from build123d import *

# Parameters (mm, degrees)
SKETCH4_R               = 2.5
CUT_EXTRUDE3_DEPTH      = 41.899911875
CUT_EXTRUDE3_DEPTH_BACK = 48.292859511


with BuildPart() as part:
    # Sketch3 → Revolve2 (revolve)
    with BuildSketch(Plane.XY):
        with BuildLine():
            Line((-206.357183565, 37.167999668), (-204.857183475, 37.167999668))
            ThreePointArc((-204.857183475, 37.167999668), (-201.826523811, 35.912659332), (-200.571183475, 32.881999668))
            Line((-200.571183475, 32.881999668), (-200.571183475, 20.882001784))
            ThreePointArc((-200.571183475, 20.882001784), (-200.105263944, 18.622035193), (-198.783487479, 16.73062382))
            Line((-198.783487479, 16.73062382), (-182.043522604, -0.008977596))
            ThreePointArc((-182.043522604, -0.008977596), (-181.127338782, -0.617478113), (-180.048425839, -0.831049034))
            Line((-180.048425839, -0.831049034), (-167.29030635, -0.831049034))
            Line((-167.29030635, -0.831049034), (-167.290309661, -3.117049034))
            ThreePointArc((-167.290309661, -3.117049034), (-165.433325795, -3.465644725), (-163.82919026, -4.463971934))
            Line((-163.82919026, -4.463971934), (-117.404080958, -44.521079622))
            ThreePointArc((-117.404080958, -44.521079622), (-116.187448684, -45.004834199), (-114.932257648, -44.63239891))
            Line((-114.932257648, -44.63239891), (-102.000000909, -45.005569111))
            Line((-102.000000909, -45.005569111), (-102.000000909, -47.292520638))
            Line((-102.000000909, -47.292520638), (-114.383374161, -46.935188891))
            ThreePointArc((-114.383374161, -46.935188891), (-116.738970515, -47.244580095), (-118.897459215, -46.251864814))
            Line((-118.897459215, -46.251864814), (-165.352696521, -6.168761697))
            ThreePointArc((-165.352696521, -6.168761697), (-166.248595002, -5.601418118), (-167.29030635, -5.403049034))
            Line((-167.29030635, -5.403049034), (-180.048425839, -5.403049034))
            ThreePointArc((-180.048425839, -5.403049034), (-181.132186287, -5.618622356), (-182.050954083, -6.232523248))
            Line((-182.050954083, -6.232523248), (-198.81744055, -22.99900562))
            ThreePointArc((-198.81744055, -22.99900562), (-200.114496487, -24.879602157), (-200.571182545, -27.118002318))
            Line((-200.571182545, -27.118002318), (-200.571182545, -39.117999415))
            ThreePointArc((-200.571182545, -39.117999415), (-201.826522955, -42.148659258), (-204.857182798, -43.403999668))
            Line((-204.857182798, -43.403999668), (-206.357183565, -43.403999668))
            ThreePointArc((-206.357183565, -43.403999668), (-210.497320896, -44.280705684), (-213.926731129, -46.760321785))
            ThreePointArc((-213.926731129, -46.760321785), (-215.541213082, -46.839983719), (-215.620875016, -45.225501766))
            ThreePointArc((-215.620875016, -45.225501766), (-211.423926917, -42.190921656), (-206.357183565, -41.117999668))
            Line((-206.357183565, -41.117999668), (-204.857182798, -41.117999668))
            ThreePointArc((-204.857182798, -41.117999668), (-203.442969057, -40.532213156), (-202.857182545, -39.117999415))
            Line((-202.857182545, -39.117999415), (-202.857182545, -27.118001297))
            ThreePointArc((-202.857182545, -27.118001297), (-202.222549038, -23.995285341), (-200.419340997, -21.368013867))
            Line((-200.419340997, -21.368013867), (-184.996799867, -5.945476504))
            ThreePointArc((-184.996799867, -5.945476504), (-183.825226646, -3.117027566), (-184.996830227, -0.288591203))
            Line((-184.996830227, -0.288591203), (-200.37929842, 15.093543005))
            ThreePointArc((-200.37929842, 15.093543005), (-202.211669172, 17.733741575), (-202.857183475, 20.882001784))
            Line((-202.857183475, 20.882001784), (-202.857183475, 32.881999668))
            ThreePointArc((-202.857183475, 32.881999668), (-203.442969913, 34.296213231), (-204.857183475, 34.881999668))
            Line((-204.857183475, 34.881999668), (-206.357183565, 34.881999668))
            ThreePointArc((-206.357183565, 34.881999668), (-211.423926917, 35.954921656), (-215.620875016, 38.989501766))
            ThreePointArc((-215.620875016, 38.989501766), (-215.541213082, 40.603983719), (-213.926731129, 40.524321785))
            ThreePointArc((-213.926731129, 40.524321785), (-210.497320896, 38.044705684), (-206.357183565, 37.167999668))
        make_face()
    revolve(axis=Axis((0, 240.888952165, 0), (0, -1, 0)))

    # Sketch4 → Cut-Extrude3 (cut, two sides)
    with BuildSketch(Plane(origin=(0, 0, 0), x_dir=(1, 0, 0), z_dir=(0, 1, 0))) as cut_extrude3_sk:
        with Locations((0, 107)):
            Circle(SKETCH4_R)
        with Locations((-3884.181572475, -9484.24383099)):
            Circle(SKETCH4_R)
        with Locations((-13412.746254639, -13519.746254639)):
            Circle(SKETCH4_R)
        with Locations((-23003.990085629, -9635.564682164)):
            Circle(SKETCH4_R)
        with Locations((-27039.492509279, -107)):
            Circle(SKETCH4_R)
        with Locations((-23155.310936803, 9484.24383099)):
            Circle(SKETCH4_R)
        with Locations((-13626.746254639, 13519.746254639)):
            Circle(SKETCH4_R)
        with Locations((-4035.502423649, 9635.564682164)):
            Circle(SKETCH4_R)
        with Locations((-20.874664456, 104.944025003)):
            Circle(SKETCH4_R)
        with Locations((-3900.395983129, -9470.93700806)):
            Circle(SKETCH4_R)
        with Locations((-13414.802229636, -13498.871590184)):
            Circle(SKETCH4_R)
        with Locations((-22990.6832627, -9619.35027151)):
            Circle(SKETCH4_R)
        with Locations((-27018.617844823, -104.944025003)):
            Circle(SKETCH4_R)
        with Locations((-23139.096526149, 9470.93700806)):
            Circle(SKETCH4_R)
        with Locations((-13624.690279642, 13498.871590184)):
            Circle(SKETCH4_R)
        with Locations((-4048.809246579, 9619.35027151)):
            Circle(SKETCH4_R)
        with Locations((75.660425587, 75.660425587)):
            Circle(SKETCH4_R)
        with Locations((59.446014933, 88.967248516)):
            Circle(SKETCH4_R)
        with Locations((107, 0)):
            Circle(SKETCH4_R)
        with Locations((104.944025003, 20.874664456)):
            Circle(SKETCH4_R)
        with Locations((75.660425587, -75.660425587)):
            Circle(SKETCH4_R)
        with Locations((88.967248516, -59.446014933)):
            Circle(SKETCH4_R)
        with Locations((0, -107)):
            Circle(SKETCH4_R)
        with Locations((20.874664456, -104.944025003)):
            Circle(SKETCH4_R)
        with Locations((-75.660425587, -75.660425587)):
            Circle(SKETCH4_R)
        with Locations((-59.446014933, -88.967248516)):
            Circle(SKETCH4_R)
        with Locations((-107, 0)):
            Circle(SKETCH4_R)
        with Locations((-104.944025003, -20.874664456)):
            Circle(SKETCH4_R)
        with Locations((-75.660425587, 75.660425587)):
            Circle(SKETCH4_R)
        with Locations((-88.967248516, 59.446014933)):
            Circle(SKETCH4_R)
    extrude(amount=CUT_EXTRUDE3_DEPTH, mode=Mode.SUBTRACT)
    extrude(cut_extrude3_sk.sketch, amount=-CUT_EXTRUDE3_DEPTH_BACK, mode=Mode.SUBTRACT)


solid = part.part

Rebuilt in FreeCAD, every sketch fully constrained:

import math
import FreeCAD as App
import Part
import Sketcher

V = App.Vector

doc = App.newDocument("Part")
params = doc.addObject("Spreadsheet::Sheet", "Params")
for row, (alias, value) in enumerate([
    ("sketch1_radius", "2 mm"),
    ("sketch1_radius2", "8.000002 mm"),
    ("sketch1_radius3", "4 mm"),
    ("sketch1_radius4", "8.000001 mm"),
    ("sketch1_radius5", "2 mm"),
    ("revolution_angle", "360 deg"),
    ("sketch2_diameter", "5 mm"),
], start=1):
    params.set(f"A{row}", alias)
    params.set(f"B{row}", "=" + value)
    params.setAlias(f"B{row}", alias)

body = doc.addObject("PartDesign::Body", "Body")

# Sketch on XY plane
sketch1 = body.newObject("Sketcher::SketchObject", "Sketch")
sketch1.AttachmentSupport = (doc.getObject("XY_Plane"), [""])
sketch1.MapMode = "FlatFace"
sketch1.addGeometry([
    Part.LineSegment(V(-204.857183, 37.168, 0), V(-206.357184, 37.168, 0)),  # 0
    Part.ArcOfCircle(Part.Circle(V(-206.357184, 47.382, 0), V(0, 0, 1), 10.214), math.radians(-137.824803), math.radians(-90)),  # 1
    Part.ArcOfCircle(Part.Circle(V(-214.773803, 39.756912, 0), V(0, 0, 1), 1.143), math.radians(42.175197), math.radians(222.175197)),  # 2
    Part.ArcOfCircle(Part.Circle(V(-206.357184, 47.382, 0), V(0, 0, 1), 12.5), math.radians(-137.824803), math.radians(-90)),  # 3
    Part.LineSegment(V(-206.357184, 34.882, 0), V(-204.857183, 34.882, 0)),  # 4
    Part.ArcOfCircle(Part.Circle(V(-204.857183, 32.882, 0), V(0, 0, 1), 2), math.radians(0), math.radians(90)),  # 5
    Part.LineSegment(V(-202.857183, 32.882, 0), V(-202.857183, 20.882002, 0)),  # 6
    Part.ArcOfCircle(Part.Circle(V(-194.857182, 20.882002, 0), V(0, 0, 1), 8.000002), math.radians(-180), math.radians(-133.651045)),  # 7
    Part.LineSegment(V(-200.379298, 15.093543, 0), V(-184.99683, -0.288591, 0)),  # 8
    Part.ArcOfCircle(Part.Circle(V(-187.825227, -3.117049, 0), V(0, 0, 1), 4), math.radians(-45.000007), math.radians(45.000622)),  # 9
    Part.LineSegment(V(-184.9968, -5.945477, 0), V(-200.419341, -21.368014, 0)),  # 10
    Part.ArcOfCircle(Part.Circle(V(-194.857182, -27.118005, 0), V(0, 0, 1), 8.000001), math.radians(134.048723), math.radians(179.999974)),  # 11
    Part.LineSegment(V(-202.857183, -27.118001, 0), V(-202.857183, -39.117999, 0)),  # 12
    Part.ArcOfCircle(Part.Circle(V(-204.857183, -39.117999, 0), V(0, 0, 1), 2), math.radians(-90), math.radians(0)),  # 13
    Part.LineSegment(V(-204.857183, -41.118, 0), V(-206.357184, -41.118, 0)),  # 14
    Part.ArcOfCircle(Part.Circle(V(-206.357184, -53.618, 0), V(0, 0, 1), 12.5), math.radians(90), math.radians(137.824803)),  # 15
    Part.ArcOfCircle(Part.Circle(V(-214.773803, -45.992912, 0), V(0, 0, 1), 1.143), math.radians(137.824803), math.radians(317.824803)),  # 16
    Part.ArcOfCircle(Part.Circle(V(-206.357184, -53.618, 0), V(0, 0, 1), 10.214), math.radians(90), math.radians(137.824803)),  # 17
    Part.LineSegment(V(-206.357184, -43.404, 0), V(-204.857183, -43.404, 0)),  # 18
    Part.ArcOfCircle(Part.Circle(V(-204.857183, -39.117999, 0), V(0, 0, 1), 4.286), math.radians(-90), math.radians(0)),  # 19
    Part.LineSegment(V(-200.571183, -39.117999, 0), V(-200.571183, -27.118002, 0)),  # 20
    Part.ArcOfCircle(Part.Circle(V(-194.857182, -27.118005, 0), V(0, 0, 1), 5.714001), math.radians(133.874402), math.radians(179.999974)),  # 21
    Part.LineSegment(V(-198.817441, -22.999006, 0), V(-182.050954, -6.232523, 0)),  # 22
    Part.ArcOfCircle(Part.Circle(V(-180.048426, -8.235052, 0), V(0, 0, 1), 2.832003), math.radians(90), math.radians(134.999993)),  # 23
    Part.LineSegment(V(-180.048426, -5.403049, 0), V(-167.290306, -5.403049, 0)),  # 24
    Part.ArcOfCircle(Part.Circle(V(-167.290302, -8.237423, 0), V(0, 0, 1), 2.834374), math.radians(46.873626), math.radians(90.000083)),  # 25
    Part.LineSegment(V(-165.352697, -6.168762, 0), V(-118.897459, -46.251865, 0)),  # 26
    Part.ArcOfCircle(Part.Circle(V(-116.097464, -43.006746, 0), V(0, 0, 1), 4.286113), math.radians(-130.788703), math.radians(-66.427004)),  # 27
    Part.LineSegment(V(-114.383374, -46.935189, 0), V(-102.000001, -47.292521, 0)),  # 28
    Part.LineSegment(V(-102.000001, -47.292521, 0), V(-102.000001, -45.005569, 0)),  # 29
    Part.LineSegment(V(-102.000001, -45.005569, 0), V(-114.932258, -44.632399, 0)),  # 30
    Part.ArcOfCircle(Part.Circle(V(-116.097464, -43.006746, 0), V(0, 0, 1), 2.000113), math.radians(-130.788703), math.radians(-54.368477)),  # 31
    Part.LineSegment(V(-117.404081, -44.52108, 0), V(-163.82919, -4.463972, 0)),  # 32
    Part.ArcOfCircle(Part.Circle(V(-167.290302, -8.237423, 0), V(0, 0, 1), 5.120374), math.radians(47.472105), math.radians(90.000083)),  # 33
    Part.LineSegment(V(-167.29031, -3.117049, 0), V(-167.290306, -0.831049, 0)),  # 34
    Part.LineSegment(V(-167.290306, -0.831049, 0), V(-180.048426, -0.831049, 0)),  # 35
    Part.ArcOfCircle(Part.Circle(V(-180.048426, 2.000951, 0), V(0, 0, 1), 2.832), math.radians(-134.787818), math.radians(-90)),  # 36
    Part.LineSegment(V(-182.043523, -0.008978, 0), V(-198.783487, 16.730624, 0)),  # 37
    Part.ArcOfCircle(Part.Circle(V(-194.857182, 20.882002, 0), V(0, 0, 1), 5.714002), math.radians(180), math.radians(226.596046)),  # 38
    Part.LineSegment(V(-200.571183, 20.882002, 0), V(-200.571183, 32.882, 0)),  # 39
    Part.ArcOfCircle(Part.Circle(V(-204.857183, 32.882, 0), V(0, 0, 1), 4.286), math.radians(0), math.radians(90)),  # 40
], False)
sketch1.addConstraint([
    Sketcher.Constraint("Coincident", 0, 2, 1, 2),
    Sketcher.Constraint("Coincident", 1, 1, 2, 1),
    Sketcher.Constraint("Coincident", 2, 2, 3, 1),
    Sketcher.Constraint("Coincident", 3, 2, 4, 1),
    Sketcher.Constraint("Coincident", 4, 2, 5, 2),
    Sketcher.Constraint("Coincident", 5, 1, 6, 1),
    Sketcher.Constraint("Coincident", 6, 2, 7, 1),
    Sketcher.Constraint("Coincident", 7, 2, 8, 1),
    Sketcher.Constraint("Coincident", 8, 2, 9, 2),
    Sketcher.Constraint("Coincident", 9, 1, 10, 1),
    Sketcher.Constraint("Coincident", 10, 2, 11, 1),
    Sketcher.Constraint("Coincident", 11, 2, 12, 1),
    Sketcher.Constraint("Coincident", 12, 2, 13, 2),
    Sketcher.Constraint("Coincident", 13, 1, 14, 1),
    Sketcher.Constraint("Coincident", 14, 2, 15, 1),
    Sketcher.Constraint("Coincident", 15, 2, 16, 1),
    Sketcher.Constraint("Coincident", 16, 2, 17, 2),
    Sketcher.Constraint("Coincident", 17, 1, 18, 1),
    Sketcher.Constraint("Coincident", 18, 2, 19, 1),
    Sketcher.Constraint("Coincident", 19, 2, 20, 1),
    Sketcher.Constraint("Coincident", 20, 2, 21, 2),
    Sketcher.Constraint("Coincident", 21, 1, 22, 1),
    Sketcher.Constraint("Coincident", 22, 2, 23, 2),
    Sketcher.Constraint("Coincident", 23, 1, 24, 1),
    Sketcher.Constraint("Coincident", 24, 2, 25, 2),
    Sketcher.Constraint("Coincident", 25, 1, 26, 1),
    Sketcher.Constraint("Coincident", 26, 2, 27, 1),
    Sketcher.Constraint("Coincident", 27, 2, 28, 1),
    Sketcher.Constraint("Coincident", 28, 2, 29, 1),
    Sketcher.Constraint("Coincident", 29, 2, 30, 1),
    Sketcher.Constraint("Coincident", 30, 2, 31, 2),
    Sketcher.Constraint("Coincident", 31, 1, 32, 1),
    Sketcher.Constraint("Coincident", 32, 2, 33, 1),
    Sketcher.Constraint("Coincident", 33, 2, 34, 1),
    Sketcher.Constraint("Coincident", 34, 2, 35, 1),
    Sketcher.Constraint("Coincident", 35, 2, 36, 2),
    Sketcher.Constraint("Coincident", 36, 1, 37, 1),
    Sketcher.Constraint("Coincident", 37, 2, 38, 2),
    Sketcher.Constraint("Coincident", 38, 1, 39, 1),
    Sketcher.Constraint("Coincident", 39, 2, 40, 1),
    Sketcher.Constraint("Coincident", 40, 2, 0, 1),
    Sketcher.Constraint("Horizontal", 0),
    Sketcher.Constraint("Horizontal", 4),
    Sketcher.Constraint("Vertical", 6),
    Sketcher.Constraint("Vertical", 12),
    Sketcher.Constraint("Horizontal", 14),
    Sketcher.Constraint("Horizontal", 18),
    Sketcher.Constraint("Vertical", 20),
    Sketcher.Constraint("Horizontal", 24),
    Sketcher.Constraint("Vertical", 29),
    Sketcher.Constraint("Horizontal", 35),
    Sketcher.Constraint("Vertical", 39),
    Sketcher.Constraint("Coincident", 3, 3, 1, 3),
    Sketcher.Constraint("Coincident", 17, 3, 15, 3),
    Sketcher.Constraint("Coincident", 19, 3, 13, 3),
    Sketcher.Constraint("Coincident", 21, 3, 11, 3),
    Sketcher.Constraint("Coincident", 31, 3, 27, 3),
    Sketcher.Constraint("Coincident", 33, 3, 25, 3),
    Sketcher.Constraint("Coincident", 38, 3, 7, 3),
    Sketcher.Constraint("Coincident", 40, 3, 5, 3),
    Sketcher.Constraint("Radius", 5, 2.0),
    Sketcher.Constraint("Radius", 7, 8.000002),
    Sketcher.Constraint("Radius", 9, 4.0),
    Sketcher.Constraint("Radius", 11, 8.000001),
    Sketcher.Constraint("Radius", 13, 2.0),
    Sketcher.Constraint("Radius", 3, 12.5),
    Sketcher.Constraint("Radius", 15, 12.5),
    Sketcher.Constraint("DistanceY", 12, 2, 12, 1, 11.999998),
    Sketcher.Constraint("DistanceX", 0, 2, 0, 1, 1.5),
    Sketcher.Constraint("DistanceX", 4, 1, 4, 2, 1.5),
    Sketcher.Constraint("DistanceX", 14, 2, 14, 1, 1.500001),
    Sketcher.Constraint("DistanceX", 18, 1, 18, 2, 1.500001),
    Sketcher.Constraint("DistanceX", 28, 2, -1, 1, 102.000001),
    Sketcher.Constraint("Radius", 1, 10.214),
    Sketcher.Constraint("Radius", 16, 1.143),
    Sketcher.Constraint("Radius", 36, 2.832),
    Sketcher.Constraint("Distance", 34, 2.286),
    Sketcher.Constraint("DistanceY", -1, 1, 1, 3, 47.382),
    Sketcher.Constraint("DistanceY", -1, 1, 7, 3, 20.882002),
    Sketcher.Constraint("DistanceY", 13, 3, -1, 1, 39.117999),
    Sketcher.Constraint("DistanceY", -1, 1, 5, 1, 32.882),
    Sketcher.Constraint("DistanceY", -1, 1, 6, 2, 20.882002),
    Sketcher.Constraint("DistanceY", 11, 2, -1, 1, 27.118001),
    Sketcher.Constraint("DistanceY", 19, 2, -1, 1, 39.117999),
    Sketcher.Constraint("DistanceY", -1, 1, 38, 1, 20.882002),
    Sketcher.Constraint("DistanceY", -1, 1, 39, 2, 32.882),
    Sketcher.Constraint("Radius", 23, 2.832003),
    Sketcher.Constraint("Radius", 25, 2.834374),
    Sketcher.Constraint("Radius", 27, 4.286113),
    Sketcher.Constraint("Radius", 31, 2.000113),
    Sketcher.Constraint("Radius", 33, 5.120374),
    Sketcher.Constraint("DistanceX", 24, 1, 24, 2, 12.758119),
    Sketcher.Constraint("DistanceX", 35, 2, 35, 1, 12.758119),
    Sketcher.Constraint("DistanceY", 29, 1, 29, 2, 2.286952),
    Sketcher.Constraint("DistanceY", -1, 1, 2, 2, 38.989502),
    Sketcher.Constraint("DistanceX", 7, 2, -1, 1, 200.379298),
    Sketcher.Constraint("DistanceX", 9, 1, -1, 1, 184.9968),
    Sketcher.Constraint("DistanceY", 15, 2, -1, 1, 45.225502),
    Sketcher.Constraint("DistanceY", 30, 2, -1, 1, 44.632399),
    Sketcher.Constraint("Distance", 8, 21.753859),
    Sketcher.Constraint("Distance", 22, 23.71139),
    Sketcher.Constraint("Distance", 26, 61.357512),
    Sketcher.Constraint("Distance", 30, 12.93764),
    Sketcher.Constraint("Distance", 32, 61.317719),
    Sketcher.Constraint("Distance", 37, 23.673628),
    Sketcher.Constraint("DistanceY", 20, 1, 20, 2, 11.999997),
    Sketcher.Constraint("DistanceY", -1, 1, 2, 3, 39.756912),
    Sketcher.Constraint("DistanceX", 7, 3, -1, 1, 194.857182),
    Sketcher.Constraint("DistanceY", 9, 3, -1, 1, 3.117049),
    Sketcher.Constraint("DistanceX", 11, 3, -1, 1, 194.857182),
    Sketcher.Constraint("DistanceY", 16, 3, -1, 1, 45.992912),
    Sketcher.Constraint("DistanceY", 23, 3, -1, 1, 8.235052),
    Sketcher.Constraint("DistanceX", 1, 1, -1, 1, 213.926731),
    Sketcher.Constraint("DistanceY", -1, 1, 1, 1, 40.524322),
    Sketcher.Constraint("DistanceX", 8, 2, -1, 1, 184.99683),
    Sketcher.Constraint("DistanceX", 10, 2, -1, 1, 200.419341),
    Sketcher.Constraint("DistanceX", 16, 2, -1, 1, 213.926731),
    Sketcher.Constraint("DistanceY", 16, 2, -1, 1, 46.760322),
    Sketcher.Constraint("DistanceX", 21, 1, -1, 1, 198.817441),
    Sketcher.Constraint("DistanceY", 25, 1, -1, 1, 6.168762),
    Sketcher.Constraint("DistanceX", 26, 2, -1, 1, 118.897459),
    Sketcher.Constraint("DistanceY", 27, 2, -1, 1, 46.935189),
    Sketcher.Constraint("DistanceY", 28, 2, -1, 1, 47.292521),
    Sketcher.Constraint("DistanceX", 31, 1, -1, 1, 117.404081),
    Sketcher.Constraint("DistanceY", 31, 1, -1, 1, 44.52108),
    Sketcher.Constraint("DistanceX", 33, 2, -1, 1, 167.29031),
    Sketcher.Constraint("Distance", 10, 21.810764),
    Sketcher.Constraint("DistanceX", 23, 3, -1, 1, 180.048426),
    Sketcher.Constraint("DistanceX", 36, 3, -1, 1, 180.048426),
    Sketcher.Constraint("DistanceX", 0, 2, -1, 1, 206.357184),
    Sketcher.Constraint("DistanceX", 3, 2, -1, 1, 206.357184),
    Sketcher.Constraint("DistanceX", 13, 1, -1, 1, 204.857183),
    Sketcher.Constraint("DistanceX", 17, 1, -1, 1, 206.357184),
    Sketcher.Constraint("DistanceX", 23, 1, -1, 1, 180.048426),
    Sketcher.Constraint("DistanceX", 34, 2, -1, 1, 167.290306),
    Sketcher.Constraint("DistanceX", 36, 1, -1, 1, 182.043523),
])
sketch1.setExpression("Constraints[60]", "Params.sketch1_radius")
sketch1.setExpression("Constraints[61]", "Params.sketch1_radius2")
sketch1.setExpression("Constraints[62]", "Params.sketch1_radius3")
sketch1.setExpression("Constraints[63]", "Params.sketch1_radius4")
sketch1.setExpression("Constraints[64]", "Params.sketch1_radius5")
revolution = body.newObject("PartDesign::Revolution", "Revolution")
revolution.Profile = sketch1
revolution.ReferenceAxis = (sketch1, ["V_Axis"])
revolution.setExpression("Angle", "Params.revolution_angle")

# Sketch on XZ plane
sketch2 = body.newObject("Sketcher::SketchObject", "Sketch001")
sketch2.AttachmentSupport = (doc.getObject("XZ_Plane"), [""])
sketch2.MapMode = "FlatFace"
sketch2.addGeometry([
    Part.Circle(V(0, -107, 0), V(0, 0, 1), 2.5),  # 0
    Part.Circle(V(-3884.2, 9484.2, 0), V(0, 0, 1), 2.5),  # 1
    Part.Circle(V(-13412.7, 13519.7, 0), V(0, 0, 1), 2.5),  # 2
    Part.Circle(V(-23004, 9635.6, 0), V(0, 0, 1), 2.5),  # 3
    Part.Circle(V(-27039.5, 107, 0), V(0, 0, 1), 2.5),  # 4
    Part.Circle(V(-23155.3, -9484.2, 0), V(0, 0, 1), 2.5),  # 5
    Part.Circle(V(-13626.7, -13519.7, 0), V(0, 0, 1), 2.5),  # 6
    Part.Circle(V(-4035.5, -9635.6, 0), V(0, 0, 1), 2.5),  # 7
    Part.Circle(V(-20.9, -104.9, 0), V(0, 0, 1), 2.5),  # 8
    Part.Circle(V(-3900.4, 9470.9, 0), V(0, 0, 1), 2.5),  # 9
    Part.Circle(V(-13414.8, 13498.9, 0), V(0, 0, 1), 2.5),  # 10
    Part.Circle(V(-22990.7, 9619.4, 0), V(0, 0, 1), 2.5),  # 11
    Part.Circle(V(-27018.6, 104.9, 0), V(0, 0, 1), 2.5),  # 12
    Part.Circle(V(-23139.1, -9470.9, 0), V(0, 0, 1), 2.5),  # 13
    Part.Circle(V(-13624.7, -13498.9, 0), V(0, 0, 1), 2.5),  # 14
    Part.Circle(V(-4048.8, -9619.4, 0), V(0, 0, 1), 2.5),  # 15
    Part.Circle(V(75.7, -75.7, 0), V(0, 0, 1), 2.5),  # 16
    Part.Circle(V(59.4, -89, 0), V(0, 0, 1), 2.5),  # 17
    Part.Circle(V(107, 0, 0), V(0, 0, 1), 2.5),  # 18
    Part.Circle(V(104.9, -20.9, 0), V(0, 0, 1), 2.5),  # 19
    Part.Circle(V(75.7, 75.7, 0), V(0, 0, 1), 2.5),  # 20
    Part.Circle(V(89, 59.4, 0), V(0, 0, 1), 2.5),  # 21
    Part.Circle(V(0, 107, 0), V(0, 0, 1), 2.5),  # 22
    Part.Circle(V(20.9, 104.9, 0), V(0, 0, 1), 2.5),  # 23
    Part.Circle(V(-75.7, 75.7, 0), V(0, 0, 1), 2.5),  # 24
    Part.Circle(V(-59.4, 89, 0), V(0, 0, 1), 2.5),  # 25
    Part.Circle(V(-107, 0, 0), V(0, 0, 1), 2.5),  # 26
    Part.Circle(V(-104.9, 20.9, 0), V(0, 0, 1), 2.5),  # 27
    Part.Circle(V(-75.7, -75.7, 0), V(0, 0, 1), 2.5),  # 28
    Part.Circle(V(-89, -59.4, 0), V(0, 0, 1), 2.5),  # 29
], False)
sketch2.addConstraint([
    Sketcher.Constraint("Equal", 0, 1),
    Sketcher.Constraint("Equal", 1, 2),
    Sketcher.Constraint("Equal", 2, 3),
    Sketcher.Constraint("Equal", 3, 4),
    Sketcher.Constraint("Equal", 4, 5),
    Sketcher.Constraint("Equal", 5, 6),
    Sketcher.Constraint("Equal", 6, 7),
    Sketcher.Constraint("Equal", 7, 8),
    Sketcher.Constraint("Equal", 8, 9),
    Sketcher.Constraint("Equal", 9, 10),
    Sketcher.Constraint("Equal", 10, 11),
    Sketcher.Constraint("Equal", 11, 12),
    Sketcher.Constraint("Equal", 12, 13),
    Sketcher.Constraint("Equal", 13, 14),
    Sketcher.Constraint("Equal", 14, 15),
    Sketcher.Constraint("Equal", 15, 16),
    Sketcher.Constraint("Equal", 16, 17),
    Sketcher.Constraint("Equal", 17, 18),
    Sketcher.Constraint("Equal", 18, 19),
    Sketcher.Constraint("Equal", 19, 20),
    Sketcher.Constraint("Equal", 20, 21),
    Sketcher.Constraint("Equal", 21, 22),
    Sketcher.Constraint("Equal", 22, 23),
    Sketcher.Constraint("Equal", 23, 24),
    Sketcher.Constraint("Equal", 24, 25),
    Sketcher.Constraint("Equal", 25, 26),
    Sketcher.Constraint("Equal", 26, 27),
    Sketcher.Constraint("Equal", 27, 28),
    Sketcher.Constraint("Equal", 28, 29),
    Sketcher.Constraint("Symmetric", 0, 3, 22, 3, -1, 1),
    Sketcher.Constraint("Symmetric", 8, 3, 23, 3, -1, 1),
    Sketcher.Constraint("Symmetric", 16, 3, 24, 3, -1, 1),
    Sketcher.Constraint("Symmetric", 17, 3, 25, 3, -1, 1),
    Sketcher.Constraint("Symmetric", 18, 3, 26, 3, -1, 1),
    Sketcher.Constraint("Symmetric", 19, 3, 27, 3, -1, 1),
    Sketcher.Constraint("Symmetric", 20, 3, 28, 3, -1, 1),
    Sketcher.Constraint("Symmetric", 21, 3, 29, 3, -1, 1),
    Sketcher.Constraint("Symmetric", 20, 3, 24, 3, -2),
    Sketcher.Constraint("PointOnObject", 0, 3, -2),
    Sketcher.Constraint("PointOnObject", 18, 3, -1),
    Sketcher.Constraint("Horizontal", 4, 3, 22, 3),
    Sketcher.Constraint("Horizontal", 12, 3, 23, 3),
    Sketcher.Constraint("Diameter", 0, 5.0),
    Sketcher.Constraint("DistanceY", 0, 3, -1, 1, 107.0),
    Sketcher.Constraint("DistanceX", -1, 1, 18, 3, 107.0),
    Sketcher.Constraint("DistanceX", 1, 3, 16, 3, 3959.841998),
    Sketcher.Constraint("DistanceX", 9, 3, 17, 3, 3959.841998),
    Sketcher.Constraint("DistanceY", 8, 3, 16, 3, 29.283599),
    Sketcher.Constraint("DistanceX", 16, 3, 19, 3, 29.283599),
    Sketcher.Constraint("DistanceY", -1, 1, 1, 3, 9484.243831),
    Sketcher.Constraint("DistanceX", 4, 3, -1, 1, 27039.492509),
    Sketcher.Constraint("DistanceY", 5, 3, -1, 1, 9484.243831),
    Sketcher.Constraint("DistanceY", -1, 1, 9, 3, 9470.937008),
    Sketcher.Constraint("DistanceX", 10, 3, -1, 1, 13414.80223),
    Sketcher.Constraint("DistanceY", -1, 1, 10, 3, 13498.87159),
    Sketcher.Constraint("DistanceY", -1, 1, 11, 3, 9619.350272),
    Sketcher.Constraint("DistanceY", 13, 3, -1, 1, 9470.937008),
    Sketcher.Constraint("DistanceX", 14, 3, -1, 1, 13624.69028),
    Sketcher.Constraint("DistanceY", 14, 3, -1, 1, 13498.87159),
    Sketcher.Constraint("DistanceY", 15, 3, -1, 1, 9619.350272),
    Sketcher.Constraint("DistanceY", 17, 3, -1, 1, 88.967249),
    Sketcher.Constraint("DistanceX", -1, 1, 21, 3, 88.967249),
    Sketcher.Constraint("DistanceX", 3, 3, 2, 3, 9591.243831),
    Sketcher.Constraint("DistanceY", 1, 3, 3, 3, 151.320851),
    Sketcher.Constraint("DistanceX", 5, 3, 3, 3, 151.320851),
    Sketcher.Constraint("DistanceX", 3, 3, 6, 3, 9377.243831),
    Sketcher.Constraint("DistanceX", 6, 3, 7, 3, 9591.243831),
    Sketcher.Constraint("DistanceX", 7, 3, 1, 3, 151.320851),
    Sketcher.Constraint("DistanceY", 7, 3, 5, 3, 151.320851),
    Sketcher.Constraint("DistanceX", 1, 3, 8, 3, 3863.306908),
    Sketcher.Constraint("DistanceY", 8, 3, 2, 3, 13624.69028),
    Sketcher.Constraint("DistanceY", 6, 3, 8, 3, 13414.80223),
    Sketcher.Constraint("DistanceX", 9, 3, 1, 3, 16.214411),
    Sketcher.Constraint("DistanceX", 11, 3, 2, 3, 9577.937008),
    Sketcher.Constraint("DistanceX", 12, 3, 5, 3, 3863.306908),
    Sketcher.Constraint("DistanceX", 5, 3, 13, 3, 16.214411),
    Sketcher.Constraint("DistanceX", 6, 3, 15, 3, 9577.937008),
    Sketcher.Constraint("DistanceY", 16, 3, 19, 3, 54.785761),
    Sketcher.Constraint("DistanceY", 19, 3, 20, 3, 96.53509),
    Sketcher.Constraint("DistanceY", 21, 3, 20, 3, 16.214411),
    Sketcher.Constraint("DistanceX", 23, 3, 20, 3, 54.785761),
])
sketch2.setExpression("Constraints[42]", "Params.sketch2_diameter")
pocket1 = body.newObject("PartDesign::Pocket", "Pocket")
pocket1.Profile = sketch2
pocket1.Type = "ThroughAll"
pocket1.Midplane = True

doc.recompute()
